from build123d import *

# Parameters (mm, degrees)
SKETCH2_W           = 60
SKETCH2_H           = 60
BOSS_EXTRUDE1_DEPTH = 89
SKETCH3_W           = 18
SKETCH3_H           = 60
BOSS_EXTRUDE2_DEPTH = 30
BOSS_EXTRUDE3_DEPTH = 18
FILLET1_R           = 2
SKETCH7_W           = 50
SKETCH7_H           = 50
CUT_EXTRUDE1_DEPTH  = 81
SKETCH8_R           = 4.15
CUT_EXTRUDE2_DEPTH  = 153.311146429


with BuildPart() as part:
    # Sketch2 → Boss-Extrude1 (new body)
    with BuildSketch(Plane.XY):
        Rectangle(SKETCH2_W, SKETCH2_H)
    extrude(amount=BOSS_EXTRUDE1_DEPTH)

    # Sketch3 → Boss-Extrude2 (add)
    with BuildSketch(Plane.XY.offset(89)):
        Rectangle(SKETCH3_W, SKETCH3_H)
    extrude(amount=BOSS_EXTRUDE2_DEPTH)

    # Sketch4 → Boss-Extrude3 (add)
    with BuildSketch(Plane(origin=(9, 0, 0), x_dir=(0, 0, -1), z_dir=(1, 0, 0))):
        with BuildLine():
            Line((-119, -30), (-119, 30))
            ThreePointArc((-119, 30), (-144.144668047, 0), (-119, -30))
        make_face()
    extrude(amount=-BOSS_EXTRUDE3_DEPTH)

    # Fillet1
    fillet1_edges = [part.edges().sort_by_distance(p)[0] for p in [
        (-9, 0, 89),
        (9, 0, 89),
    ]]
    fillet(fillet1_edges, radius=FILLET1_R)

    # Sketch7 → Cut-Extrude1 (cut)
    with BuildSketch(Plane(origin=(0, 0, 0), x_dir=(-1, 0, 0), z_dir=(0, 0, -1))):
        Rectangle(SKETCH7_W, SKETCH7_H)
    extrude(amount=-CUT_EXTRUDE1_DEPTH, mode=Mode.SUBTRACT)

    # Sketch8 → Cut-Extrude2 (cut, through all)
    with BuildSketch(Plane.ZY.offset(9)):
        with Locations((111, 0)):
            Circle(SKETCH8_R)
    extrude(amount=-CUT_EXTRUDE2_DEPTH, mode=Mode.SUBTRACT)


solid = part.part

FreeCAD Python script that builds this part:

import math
import FreeCAD as App
import Part
import Sketcher


def edges_at(feature, points):
    """Names of the edges that pass closest to the given points."""
    edges = feature.Shape.Edges
    near = lambda p: min(range(len(edges)), key=lambda i: edges[i].distToShape(Part.Vertex(*p))[0])
    return sorted({f"Edge{near(p) + 1}" for p in points})


def add_polygon(sketch, points):
    """Adds a closed chain of lines whose ends are joined by coincident constraints."""
    first, n = sketch.GeometryCount, len(points)
    for a, b in zip(points, points[1:] + points[:1]):
        sketch.addGeometry(Part.LineSegment(App.Vector(*a, 0), App.Vector(*b, 0)), False)
    for i in range(n):
        sketch.addConstraint(Sketcher.Constraint("Coincident", first + i, 2, first + (i + 1) % n, 1))

doc = App.newDocument("Part")
body = doc.addObject("PartDesign::Body", "Body")

sketch1 = body.newObject("Sketcher::SketchObject", "Sketch")
sketch1.AttachmentSupport = (doc.getObject("XY_Plane"), [""])
sketch1.MapMode = "FlatFace"
add_polygon(sketch1, [(-30, 30), (-30, -30), (30, -30), (30, 30)])
sketch1.addConstraint(Sketcher.Constraint("Vertical", 0))
sketch1.addConstraint(Sketcher.Constraint("Horizontal", 1))
sketch1.addConstraint(Sketcher.Constraint("Vertical", 2))
sketch1.addConstraint(Sketcher.Constraint("Horizontal", 3))
sketch1.addConstraint(Sketcher.Constraint("Symmetric", 0, 2, 2, 2, -1, 1))
sketch1.addConstraint(Sketcher.Constraint("Equal", 3, 0))
sketch1.addConstraint(Sketcher.Constraint("DistanceX", 1, 1, 1, 2, 60.0))
pad1 = body.newObject("PartDesign::Pad", "Pad")
pad1.Profile = sketch1
pad1.Length = 89

sketch2 = body.newObject("Sketcher::SketchObject", "Sketch001")
sketch2.AttachmentSupport = (doc.getObject("XY_Plane"), [""])
sketch2.MapMode = "FlatFace"
sketch2.AttachmentOffset = App.Placement(App.Vector(0, 0, 89), App.Rotation())
add_polygon(sketch2, [(-9, 30), (-9, -30), (9, -30), (9, 30)])
sketch2.addConstraint(Sketcher.Constraint("Vertical", 0))
sketch2.addConstraint(Sketcher.Constraint("Horizontal", 1))
sketch2.addConstraint(Sketcher.Constraint("Vertical", 2))
sketch2.addConstraint(Sketcher.Constraint("Horizontal", 3))
sketch2.addConstraint(Sketcher.Constraint("Symmetric", 0, 2, 2, 2, -1, 1))
sketch2.addConstraint(Sketcher.Constraint("DistanceX", 1, 1, 1, 2, 18.0))
sketch2.addConstraint(Sketcher.Constraint("DistanceY", 0, 2, 0, 1, 60.0))
pad2 = body.newObject("PartDesign::Pad", "Pad001")
pad2.Profile = sketch2
pad2.Length = 30

sketch3 = body.newObject("Sketcher::SketchObject", "Sketch002")
sketch3.AttachmentSupport = (doc.getObject("YZ_Plane"), [""])
sketch3.MapMode = "FlatFace"
sketch3.AttachmentOffset = App.Placement(App.Vector(0, 0, 9), App.Rotation())
sketch3.addGeometry(Part.LineSegment(App.Vector(-30, 119, 0), App.Vector(30, 119, 0)), False)
sketch3.addGeometry(Part.ArcOfCircle(Part.Circle(App.Vector(0, 114, 0), App.Vector(0, 0, 1), 30), math.radians(10), math.radians(170)), False)
sketch3.addConstraint(Sketcher.Constraint("Coincident", 0, 1, 1, 2))
sketch3.addConstraint(Sketcher.Constraint("Coincident", 1, 1, 0, 2))
sketch3.addConstraint(Sketcher.Constraint("Horizontal", 0))
sketch3.addConstraint(Sketcher.Constraint("PointOnObject", 1, 3, -2))
sketch3.addConstraint(Sketcher.Constraint("DistanceX", 0, 1, 0, 2, 60.0))
sketch3.addConstraint(Sketcher.Constraint("DistanceY", -1, 1, 0, 1, 119.0))
sketch3.addConstraint(Sketcher.Constraint("Radius", 1, 30.468772))
pad3 = body.newObject("PartDesign::Pad", "Pad002")
pad3.Profile = sketch3
pad3.Length = 18
pad3.Reversed = True
doc.recompute()

fillet = body.newObject("PartDesign::Fillet", "Fillet")
fillet.Base = (pad3, edges_at(pad3, [(-9, 0, 89), (9, 0, 89)]))
fillet.Radius = 2

sketch4 = body.newObject("Sketcher::SketchObject", "Sketch003")
sketch4.AttachmentSupport = (doc.getObject("XY_Plane"), [""])
sketch4.MapMode = "FlatFace"
add_polygon(sketch4, [(25, 25), (25, -25), (-25, -25), (-25, 25)])
sketch4.addConstraint(Sketcher.Constraint("Vertical", 0))
sketch4.addConstraint(Sketcher.Constraint("Horizontal", 1))
sketch4.addConstraint(Sketcher.Constraint("Vertical", 2))
sketch4.addConstraint(Sketcher.Constraint("Horizontal", 3))
sketch4.addConstraint(Sketcher.Constraint("Symmetric", 0, 2, 2, 2, -1, 1))
sketch4.addConstraint(Sketcher.Constraint("Equal", 3, 0))
sketch4.addConstraint(Sketcher.Constraint("DistanceX", 1, 2, 1, 1, 50.0))
pocket1 = body.newObject("PartDesign::Pocket", "Pocket")
pocket1.Profile = sketch4
pocket1.Length = 81
pocket1.Reversed = True

sketch5 = body.newObject("Sketcher::SketchObject", "Sketch004")
sketch5.AttachmentSupport = (doc.getObject("YZ_Plane"), [""])
sketch5.MapMode = "FlatFace"
sketch5.AttachmentOffset = App.Placement(App.Vector(0, 0, -9), App.Rotation())
sketch5.addGeometry(Part.Circle(App.Vector(0, 111, 0), App.Vector(0, 0, 1), 4.2), False)
sketch5.addConstraint(Sketcher.Constraint("PointOnObject", 0, 3, -2))
sketch5.addConstraint(Sketcher.Constraint("Diameter", 0, 8.3))
sketch5.addConstraint(Sketcher.Constraint("DistanceY", -1, 1, 0, 3, 111.0))
pocket2 = body.newObject("PartDesign::Pocket", "Pocket001")
pocket2.Profile = sketch5
pocket2.Type = "ThroughAll"
pocket2.Reversed = True

doc.recompute()
